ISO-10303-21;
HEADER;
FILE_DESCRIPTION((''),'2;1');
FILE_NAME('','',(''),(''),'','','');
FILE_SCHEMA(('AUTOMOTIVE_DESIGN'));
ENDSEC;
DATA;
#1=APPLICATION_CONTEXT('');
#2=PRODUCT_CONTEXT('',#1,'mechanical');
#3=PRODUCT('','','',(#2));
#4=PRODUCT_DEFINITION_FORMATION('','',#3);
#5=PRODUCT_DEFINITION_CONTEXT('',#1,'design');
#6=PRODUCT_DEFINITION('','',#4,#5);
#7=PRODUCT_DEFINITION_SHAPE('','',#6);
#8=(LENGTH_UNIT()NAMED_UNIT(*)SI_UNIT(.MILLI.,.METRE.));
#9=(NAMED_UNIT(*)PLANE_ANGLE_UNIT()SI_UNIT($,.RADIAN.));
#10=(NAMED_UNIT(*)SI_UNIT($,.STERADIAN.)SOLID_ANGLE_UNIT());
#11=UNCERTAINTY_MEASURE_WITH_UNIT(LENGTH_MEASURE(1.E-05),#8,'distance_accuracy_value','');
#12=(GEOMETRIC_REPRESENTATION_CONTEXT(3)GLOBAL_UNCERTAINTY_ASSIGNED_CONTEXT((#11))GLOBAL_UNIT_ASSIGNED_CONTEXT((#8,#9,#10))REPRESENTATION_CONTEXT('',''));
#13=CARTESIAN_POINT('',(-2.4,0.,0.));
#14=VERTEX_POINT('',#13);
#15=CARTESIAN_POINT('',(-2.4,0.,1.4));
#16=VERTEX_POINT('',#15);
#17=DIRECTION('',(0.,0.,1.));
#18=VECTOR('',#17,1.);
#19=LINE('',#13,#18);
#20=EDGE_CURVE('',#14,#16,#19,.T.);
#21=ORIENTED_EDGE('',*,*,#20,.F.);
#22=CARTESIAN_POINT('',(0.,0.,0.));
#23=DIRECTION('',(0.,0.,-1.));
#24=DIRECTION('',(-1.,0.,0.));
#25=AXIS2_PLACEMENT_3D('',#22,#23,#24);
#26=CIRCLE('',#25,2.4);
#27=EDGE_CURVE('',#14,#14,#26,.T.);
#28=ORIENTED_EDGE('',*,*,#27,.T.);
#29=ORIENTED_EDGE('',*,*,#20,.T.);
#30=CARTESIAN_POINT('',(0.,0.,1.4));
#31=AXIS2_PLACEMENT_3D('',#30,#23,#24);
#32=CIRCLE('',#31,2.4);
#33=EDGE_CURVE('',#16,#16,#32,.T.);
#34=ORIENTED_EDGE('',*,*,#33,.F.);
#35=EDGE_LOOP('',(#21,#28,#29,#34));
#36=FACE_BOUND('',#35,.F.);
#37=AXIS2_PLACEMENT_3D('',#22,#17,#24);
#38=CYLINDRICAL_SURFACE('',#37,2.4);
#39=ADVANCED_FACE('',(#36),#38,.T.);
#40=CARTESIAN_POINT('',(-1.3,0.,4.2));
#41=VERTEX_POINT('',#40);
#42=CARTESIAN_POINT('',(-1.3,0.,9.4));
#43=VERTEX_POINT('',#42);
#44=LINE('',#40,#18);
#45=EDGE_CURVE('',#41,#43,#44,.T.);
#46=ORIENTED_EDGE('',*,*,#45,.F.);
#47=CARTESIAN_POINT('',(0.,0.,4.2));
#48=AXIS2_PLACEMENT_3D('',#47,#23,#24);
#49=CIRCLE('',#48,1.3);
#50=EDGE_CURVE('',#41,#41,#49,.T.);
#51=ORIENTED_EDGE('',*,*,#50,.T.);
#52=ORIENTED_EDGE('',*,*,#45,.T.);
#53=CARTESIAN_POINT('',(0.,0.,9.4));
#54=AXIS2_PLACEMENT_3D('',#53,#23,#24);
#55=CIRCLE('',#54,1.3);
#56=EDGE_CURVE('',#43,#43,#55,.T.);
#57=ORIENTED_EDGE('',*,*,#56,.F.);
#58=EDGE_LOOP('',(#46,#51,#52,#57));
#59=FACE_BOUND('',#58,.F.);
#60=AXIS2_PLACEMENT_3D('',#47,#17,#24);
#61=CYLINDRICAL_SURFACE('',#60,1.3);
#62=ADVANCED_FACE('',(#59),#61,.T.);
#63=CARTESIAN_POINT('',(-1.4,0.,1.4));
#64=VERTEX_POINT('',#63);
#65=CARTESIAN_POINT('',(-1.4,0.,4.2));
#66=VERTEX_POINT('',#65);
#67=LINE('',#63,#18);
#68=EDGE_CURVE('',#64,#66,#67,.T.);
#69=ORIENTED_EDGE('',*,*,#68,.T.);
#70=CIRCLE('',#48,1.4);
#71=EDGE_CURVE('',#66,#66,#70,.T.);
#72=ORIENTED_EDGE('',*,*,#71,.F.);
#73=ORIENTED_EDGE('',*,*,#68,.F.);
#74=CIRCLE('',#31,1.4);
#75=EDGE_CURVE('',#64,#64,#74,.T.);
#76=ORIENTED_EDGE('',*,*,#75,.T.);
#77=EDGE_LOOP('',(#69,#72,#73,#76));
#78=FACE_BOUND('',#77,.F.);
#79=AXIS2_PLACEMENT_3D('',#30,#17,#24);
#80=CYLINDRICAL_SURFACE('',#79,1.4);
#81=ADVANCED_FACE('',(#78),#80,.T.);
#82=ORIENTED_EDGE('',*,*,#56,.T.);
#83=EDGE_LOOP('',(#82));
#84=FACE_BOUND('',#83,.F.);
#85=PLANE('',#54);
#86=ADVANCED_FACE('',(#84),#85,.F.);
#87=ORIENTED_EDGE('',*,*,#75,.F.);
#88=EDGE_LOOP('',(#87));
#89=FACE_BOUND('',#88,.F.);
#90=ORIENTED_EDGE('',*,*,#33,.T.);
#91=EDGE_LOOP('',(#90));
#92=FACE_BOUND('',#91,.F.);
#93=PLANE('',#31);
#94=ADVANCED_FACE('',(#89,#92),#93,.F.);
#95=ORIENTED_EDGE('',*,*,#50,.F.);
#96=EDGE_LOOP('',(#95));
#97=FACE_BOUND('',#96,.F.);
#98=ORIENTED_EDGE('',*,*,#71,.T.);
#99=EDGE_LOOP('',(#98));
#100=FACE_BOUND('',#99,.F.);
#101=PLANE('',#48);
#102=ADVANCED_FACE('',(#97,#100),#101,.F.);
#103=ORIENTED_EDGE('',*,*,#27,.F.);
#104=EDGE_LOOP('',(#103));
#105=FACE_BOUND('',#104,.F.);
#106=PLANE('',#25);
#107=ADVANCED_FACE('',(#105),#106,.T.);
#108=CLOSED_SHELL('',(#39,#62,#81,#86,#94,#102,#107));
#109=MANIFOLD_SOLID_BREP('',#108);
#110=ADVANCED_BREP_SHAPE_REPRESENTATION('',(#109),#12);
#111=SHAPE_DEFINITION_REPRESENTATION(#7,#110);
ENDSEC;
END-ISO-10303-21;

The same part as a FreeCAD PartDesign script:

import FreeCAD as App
import Part
import Sketcher
from FreeCAD import Vector

doc = App.newDocument("Part")
body = doc.addObject("PartDesign::Body", "Body")

sketch1 = body.newObject("Sketcher::SketchObject", "Sketch")
sketch1.AttachmentSupport = (doc.getObject("XZ_Plane"), [""])
sketch1.MapMode = "FlatFace"
sketch1.addGeometry([
    Part.LineSegment(Vector(0, 9.4, 0), Vector(0, 0, 0)),
    Part.LineSegment(Vector(0, 0, 0), Vector(-2.4, 0, 0)),
    Part.LineSegment(Vector(-2.4, 0, 0), Vector(-2.4, 1.4, 0)),
    Part.LineSegment(Vector(-2.4, 1.4, 0), Vector(-1.4, 1.4, 0)),
    Part.LineSegment(Vector(-1.4, 1.4, 0), Vector(-1.4, 4.2, 0)),
    Part.LineSegment(Vector(-1.4, 4.2, 0), Vector(-1.3, 4.2, 0)),
    Part.LineSegment(Vector(-1.3, 4.2, 0), Vector(-1.3, 9.4, 0)),
    Part.LineSegment(Vector(-1.3, 9.4, 0), Vector(0, 9.4, 0)),
], False)
sketch1.addConstraint([
    Sketcher.Constraint("Coincident", 0, 2, 1, 1),
    Sketcher.Constraint("Coincident", 1, 2, 2, 1),
    Sketcher.Constraint("Coincident", 2, 2, 3, 1),
    Sketcher.Constraint("Coincident", 3, 2, 4, 1),
    Sketcher.Constraint("Coincident", 4, 2, 5, 1),
    Sketcher.Constraint("Coincident", 5, 2, 6, 1),
    Sketcher.Constraint("Coincident", 6, 2, 7, 1),
    Sketcher.Constraint("Coincident", 7, 2, 0, 1),
    Sketcher.Constraint("Vertical", 0),
    Sketcher.Constraint("Horizontal", 1),
    Sketcher.Constraint("Vertical", 2),
    Sketcher.Constraint("Horizontal", 3),
    Sketcher.Constraint("Vertical", 4),
    Sketcher.Constraint("Horizontal", 5),
    Sketcher.Constraint("Vertical", 6),
    Sketcher.Constraint("Horizontal", 7),
    Sketcher.Constraint("Coincident", 0, 2, -1, 1),
    Sketcher.Constraint("DistanceX", 1, 2, 1, 1, 2.4),
    Sketcher.Constraint("DistanceX", 7, 1, 7, 2, 1.3),
    Sketcher.Constraint("DistanceY", 2, 1, 2, 2, 1.4),
    Sketcher.Constraint("DistanceY", 4, 1, 4, 2, 2.8),
    Sketcher.Constraint("DistanceY", 6, 1, 6, 2, 5.2),
    Sketcher.Constraint("DistanceX", 3, 2, -1, 1, 1.4),
])
revolution = body.newObject("PartDesign::Revolution", "Revolution")
revolution.Profile = sketch1
revolution.ReferenceAxis = (sketch1, ["V_Axis"])
revolution.Angle = 360

doc.recompute()
